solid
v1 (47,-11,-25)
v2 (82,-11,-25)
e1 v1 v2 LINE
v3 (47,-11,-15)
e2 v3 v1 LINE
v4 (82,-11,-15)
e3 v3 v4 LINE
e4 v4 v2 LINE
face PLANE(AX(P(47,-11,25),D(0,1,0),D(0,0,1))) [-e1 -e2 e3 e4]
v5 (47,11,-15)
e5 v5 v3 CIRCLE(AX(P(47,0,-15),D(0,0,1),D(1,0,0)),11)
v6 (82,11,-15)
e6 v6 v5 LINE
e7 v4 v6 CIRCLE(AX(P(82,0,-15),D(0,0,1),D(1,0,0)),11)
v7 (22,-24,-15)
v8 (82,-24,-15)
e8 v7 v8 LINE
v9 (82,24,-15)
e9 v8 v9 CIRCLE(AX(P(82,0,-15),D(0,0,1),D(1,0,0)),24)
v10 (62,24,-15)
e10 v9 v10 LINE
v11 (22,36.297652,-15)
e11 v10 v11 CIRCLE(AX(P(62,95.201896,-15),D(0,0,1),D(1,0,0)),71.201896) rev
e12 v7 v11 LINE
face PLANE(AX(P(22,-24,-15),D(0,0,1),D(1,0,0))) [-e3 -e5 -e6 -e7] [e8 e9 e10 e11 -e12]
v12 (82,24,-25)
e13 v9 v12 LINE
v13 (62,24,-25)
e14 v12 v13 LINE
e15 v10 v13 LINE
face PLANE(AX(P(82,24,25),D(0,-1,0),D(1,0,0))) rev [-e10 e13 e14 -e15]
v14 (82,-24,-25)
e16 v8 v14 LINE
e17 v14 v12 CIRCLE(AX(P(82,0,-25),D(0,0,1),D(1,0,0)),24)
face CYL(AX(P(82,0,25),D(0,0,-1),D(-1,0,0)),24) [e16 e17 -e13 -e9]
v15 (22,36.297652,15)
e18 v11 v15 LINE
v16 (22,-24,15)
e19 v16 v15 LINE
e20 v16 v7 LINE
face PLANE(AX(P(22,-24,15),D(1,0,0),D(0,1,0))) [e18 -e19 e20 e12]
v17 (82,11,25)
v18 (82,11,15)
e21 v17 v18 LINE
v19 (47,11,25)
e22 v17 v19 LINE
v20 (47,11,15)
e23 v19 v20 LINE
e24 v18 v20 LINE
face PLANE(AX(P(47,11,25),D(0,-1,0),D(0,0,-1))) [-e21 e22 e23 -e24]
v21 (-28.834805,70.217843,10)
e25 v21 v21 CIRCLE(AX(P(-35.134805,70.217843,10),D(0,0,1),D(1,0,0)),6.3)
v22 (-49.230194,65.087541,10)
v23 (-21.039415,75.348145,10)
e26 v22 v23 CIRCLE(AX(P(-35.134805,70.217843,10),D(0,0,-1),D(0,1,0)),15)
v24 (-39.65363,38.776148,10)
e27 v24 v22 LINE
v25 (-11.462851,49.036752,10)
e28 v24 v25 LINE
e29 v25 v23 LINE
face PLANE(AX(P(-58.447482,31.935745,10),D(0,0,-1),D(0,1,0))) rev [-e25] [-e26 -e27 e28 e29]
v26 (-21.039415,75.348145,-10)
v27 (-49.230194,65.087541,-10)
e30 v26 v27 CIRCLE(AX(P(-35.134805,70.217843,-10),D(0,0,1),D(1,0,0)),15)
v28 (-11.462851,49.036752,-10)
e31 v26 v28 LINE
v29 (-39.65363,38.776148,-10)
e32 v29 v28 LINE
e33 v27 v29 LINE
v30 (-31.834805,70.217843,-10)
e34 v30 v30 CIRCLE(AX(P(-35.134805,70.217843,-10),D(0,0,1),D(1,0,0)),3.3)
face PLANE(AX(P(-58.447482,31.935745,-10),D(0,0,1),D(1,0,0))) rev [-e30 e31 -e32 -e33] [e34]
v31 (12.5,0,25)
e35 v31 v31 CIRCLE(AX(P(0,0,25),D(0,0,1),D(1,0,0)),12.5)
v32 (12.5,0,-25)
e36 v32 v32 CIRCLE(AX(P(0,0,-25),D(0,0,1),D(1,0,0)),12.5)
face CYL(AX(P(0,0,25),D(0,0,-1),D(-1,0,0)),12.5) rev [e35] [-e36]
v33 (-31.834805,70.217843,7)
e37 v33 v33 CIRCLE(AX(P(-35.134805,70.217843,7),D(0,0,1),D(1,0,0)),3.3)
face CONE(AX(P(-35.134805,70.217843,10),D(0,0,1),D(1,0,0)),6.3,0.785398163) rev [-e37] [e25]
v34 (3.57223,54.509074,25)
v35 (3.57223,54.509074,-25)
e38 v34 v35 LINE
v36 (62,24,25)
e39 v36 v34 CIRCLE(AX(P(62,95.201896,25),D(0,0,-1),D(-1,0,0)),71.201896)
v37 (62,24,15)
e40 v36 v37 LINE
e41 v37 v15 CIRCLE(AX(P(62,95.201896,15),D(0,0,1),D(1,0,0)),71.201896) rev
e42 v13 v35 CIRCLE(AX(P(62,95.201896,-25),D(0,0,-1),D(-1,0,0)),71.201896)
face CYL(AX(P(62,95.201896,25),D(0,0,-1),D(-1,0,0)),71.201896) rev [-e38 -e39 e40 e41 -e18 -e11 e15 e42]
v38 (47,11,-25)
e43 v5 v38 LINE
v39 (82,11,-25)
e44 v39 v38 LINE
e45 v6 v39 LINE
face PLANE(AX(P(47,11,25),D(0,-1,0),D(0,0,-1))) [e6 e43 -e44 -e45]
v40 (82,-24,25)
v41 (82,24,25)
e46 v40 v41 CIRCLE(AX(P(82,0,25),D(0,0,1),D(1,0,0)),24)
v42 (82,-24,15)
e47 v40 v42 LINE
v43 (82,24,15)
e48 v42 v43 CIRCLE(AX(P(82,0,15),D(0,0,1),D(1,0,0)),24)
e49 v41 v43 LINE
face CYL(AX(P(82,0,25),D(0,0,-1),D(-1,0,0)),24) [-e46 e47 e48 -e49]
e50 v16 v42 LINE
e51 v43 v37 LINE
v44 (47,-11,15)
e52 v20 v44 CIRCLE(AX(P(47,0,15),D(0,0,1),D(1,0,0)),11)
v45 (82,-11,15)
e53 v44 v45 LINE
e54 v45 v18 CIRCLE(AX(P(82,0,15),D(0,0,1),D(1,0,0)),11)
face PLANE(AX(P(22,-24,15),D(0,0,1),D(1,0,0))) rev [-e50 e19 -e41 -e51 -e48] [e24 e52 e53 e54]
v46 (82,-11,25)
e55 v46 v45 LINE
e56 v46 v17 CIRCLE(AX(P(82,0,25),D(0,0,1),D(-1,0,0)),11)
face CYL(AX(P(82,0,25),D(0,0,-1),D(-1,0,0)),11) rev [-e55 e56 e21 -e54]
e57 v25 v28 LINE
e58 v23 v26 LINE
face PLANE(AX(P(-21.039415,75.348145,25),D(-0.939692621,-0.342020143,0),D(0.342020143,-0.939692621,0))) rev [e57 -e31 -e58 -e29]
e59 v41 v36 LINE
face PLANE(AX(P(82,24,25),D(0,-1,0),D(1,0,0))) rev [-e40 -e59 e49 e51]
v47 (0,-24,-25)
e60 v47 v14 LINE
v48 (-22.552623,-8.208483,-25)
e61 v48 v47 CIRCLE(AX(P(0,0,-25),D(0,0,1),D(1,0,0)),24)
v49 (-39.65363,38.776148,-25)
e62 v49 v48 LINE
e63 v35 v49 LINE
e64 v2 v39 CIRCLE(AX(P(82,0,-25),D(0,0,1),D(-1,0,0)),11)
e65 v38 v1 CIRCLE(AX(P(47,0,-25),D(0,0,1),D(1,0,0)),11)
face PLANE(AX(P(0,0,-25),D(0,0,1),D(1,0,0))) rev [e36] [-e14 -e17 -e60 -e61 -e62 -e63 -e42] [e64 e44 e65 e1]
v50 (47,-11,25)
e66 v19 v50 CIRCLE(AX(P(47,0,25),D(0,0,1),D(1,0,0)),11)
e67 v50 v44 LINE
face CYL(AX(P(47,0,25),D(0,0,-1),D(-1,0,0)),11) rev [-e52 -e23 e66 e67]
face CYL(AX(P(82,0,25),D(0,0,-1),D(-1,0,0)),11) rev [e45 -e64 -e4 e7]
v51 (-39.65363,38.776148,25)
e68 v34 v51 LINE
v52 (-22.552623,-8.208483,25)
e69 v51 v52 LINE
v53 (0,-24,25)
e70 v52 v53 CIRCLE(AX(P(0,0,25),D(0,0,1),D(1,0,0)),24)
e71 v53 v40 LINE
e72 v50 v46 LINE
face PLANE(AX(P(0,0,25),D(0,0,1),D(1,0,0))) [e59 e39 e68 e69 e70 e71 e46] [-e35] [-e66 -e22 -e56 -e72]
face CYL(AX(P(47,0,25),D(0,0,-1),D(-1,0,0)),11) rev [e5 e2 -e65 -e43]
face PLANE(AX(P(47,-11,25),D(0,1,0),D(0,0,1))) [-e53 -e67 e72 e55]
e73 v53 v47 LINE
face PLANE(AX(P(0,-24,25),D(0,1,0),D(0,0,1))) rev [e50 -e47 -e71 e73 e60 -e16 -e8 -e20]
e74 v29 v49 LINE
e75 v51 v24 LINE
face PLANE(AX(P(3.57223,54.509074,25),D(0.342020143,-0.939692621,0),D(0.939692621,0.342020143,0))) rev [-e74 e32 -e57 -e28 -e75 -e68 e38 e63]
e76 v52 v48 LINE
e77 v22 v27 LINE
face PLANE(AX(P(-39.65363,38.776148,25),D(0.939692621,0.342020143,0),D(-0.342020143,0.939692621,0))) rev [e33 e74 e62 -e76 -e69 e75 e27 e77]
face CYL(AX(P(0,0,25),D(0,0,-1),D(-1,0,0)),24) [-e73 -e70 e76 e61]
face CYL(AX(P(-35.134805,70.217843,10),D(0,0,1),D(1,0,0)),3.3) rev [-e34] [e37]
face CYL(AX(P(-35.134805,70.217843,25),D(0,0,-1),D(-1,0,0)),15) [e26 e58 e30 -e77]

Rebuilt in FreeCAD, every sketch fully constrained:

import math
import FreeCAD as App
import Part
import Sketcher
Q = App.Units.Quantity


def add_polygon(sketch, points):
    """Adds a closed chain of lines whose ends are joined by coincident constraints."""
    first, n = sketch.GeometryCount, len(points)
    for a, b in zip(points, points[1:] + points[:1]):
        sketch.addGeometry(Part.LineSegment(App.Vector(*a, 0), App.Vector(*b, 0)), False)
    for i in range(n):
        sketch.addConstraint(Sketcher.Constraint("Coincident", first + i, 2, first + (i + 1) % n, 1))

doc = App.newDocument("Part")
params = doc.addObject("Spreadsheet::Sheet", "Params")
for row, (alias, value) in enumerate([
    ("sketch1_diameter", "25 mm"),
    ("sketch1_diameter2", "6 mm"),
    ("sketch1_radius", "24 mm"),
    ("sketch1_radius2", "15 mm"),
    ("sketch1_radius3", "11 mm"),
    ("pad1_length", "50 mm"),
    ("sketch2_width", "15 mm"),
    ("sketch2_height", "43 mm"),
    ("pocket1_length", "50 mm"),
    ("sketch3_width", "100 mm"),
    ("sketch3_height", "30 mm"),
    ("sketch4_diameter", "6.6 mm"),
    ("hole_diameter", "6.6 mm"),
    ("hole_csink_diameter", "12.6 mm"),
], start=1):
    params.set(f"A{row}", alias)
    params.set(f"B{row}", "=" + value)
    params.setAlias(f"B{row}", alias)

body = doc.addObject("PartDesign::Body", "Body")

sketch1 = body.newObject("Sketcher::SketchObject", "Sketch")
sketch1.AttachmentSupport = (doc.getObject("XY_Plane"), [""])
sketch1.MapMode = "FlatFace"
sketch1.addGeometry([
    Part.LineSegment(App.Vector(0, -24, 0), App.Vector(82, -24, 0)),
    Part.ArcOfCircle(Part.Circle(App.Vector(82, 0, 0), App.Vector(0, 0, 1), 24), math.radians(-90), math.radians(90)),
    Part.LineSegment(App.Vector(82, 24, 0), App.Vector(62, 24, 0)),
    Part.ArcOfCircle(Part.Circle(App.Vector(62, 95.2, 0), App.Vector(0, 0, 1), 71.2), math.radians(-145), math.radians(-90)),
    Part.LineSegment(App.Vector(3.6, 54.5, 0), App.Vector(-11.5, 49, 0)),
    Part.LineSegment(App.Vector(-11.5, 49, 0), App.Vector(-21, 75.3, 0)),
    Part.ArcOfCircle(Part.Circle(App.Vector(-35.1, 70.2, 0), App.Vector(0, 0, 1), 15), math.radians(20), math.radians(200)),
    Part.LineSegment(App.Vector(-49.2, 65.1, 0), App.Vector(-22.6, -8.2, 0)),
    Part.ArcOfCircle(Part.Circle(App.Vector(0, 0, 0), App.Vector(0, 0, 1), 24), math.radians(-160), math.radians(-90)),
    Part.Circle(App.Vector(0, 0, 0), App.Vector(0, 0, 1), 12.5),
    Part.ArcOfCircle(Part.Circle(App.Vector(47, 0, 0), App.Vector(0, 0, 1), 11), math.radians(90), math.radians(270)),
    Part.LineSegment(App.Vector(47, 11, 0), App.Vector(82, 11, 0)),
    Part.ArcOfCircle(Part.Circle(App.Vector(82, 0, 0), App.Vector(0, 0, 1), 11), math.radians(-90), math.radians(90)),
    Part.LineSegment(App.Vector(82, -11, 0), App.Vector(47, -11, 0)),
    Part.Circle(App.Vector(-35.1, 70.2, 0), App.Vector(0, 0, 1), 3),
], False)
sketch1.addConstraint([
    Sketcher.Constraint("Tangent", 0, 2, 1, 1),
    Sketcher.Constraint("Tangent", 1, 2, 2, 1),
    Sketcher.Constraint("Tangent", 2, 2, 3, 2),
    Sketcher.Constraint("Coincident", 3, 1, 4, 1),
    Sketcher.Constraint("Coincident", 4, 2, 5, 1),
    Sketcher.Constraint("Tangent", 5, 2, 6, 1),
    Sketcher.Constraint("Tangent", 6, 2, 7, 1),
    Sketcher.Constraint("Tangent", 7, 2, 8, 1),
    Sketcher.Constraint("Tangent", 8, 2, 0, 1),
    Sketcher.Constraint("Tangent", 10, 1, 11, 1),
    Sketcher.Constraint("Tangent", 11, 2, 12, 2),
    Sketcher.Constraint("Tangent", 12, 1, 13, 1),
    Sketcher.Constraint("Tangent", 13, 2, 10, 2),
    Sketcher.Constraint("Horizontal", 0),
    Sketcher.Constraint("Horizontal", 2),
    Sketcher.Constraint("Horizontal", 11),
    Sketcher.Constraint("Horizontal", 13),
    Sketcher.Constraint("Coincident", 8, 3, -1, 1),
    Sketcher.Constraint("Coincident", 9, 3, -1, 1),
    Sketcher.Constraint("Coincident", 12, 3, 1, 3),
    Sketcher.Constraint("Coincident", 14, 3, 6, 3),
    Sketcher.Constraint("Equal", 1, 8),
    Sketcher.Constraint("Perpendicular", 4, 5),
    Sketcher.Constraint("Parallel", 5, 7),
    Sketcher.Constraint("Diameter", 9, Q("25 mm")),
    Sketcher.Constraint("Diameter", 14, Q("6 mm")),
    Sketcher.Constraint("Radius", 1, Q("24 mm")),
    Sketcher.Constraint("Radius", 6, Q("15 mm")),
    Sketcher.Constraint("Radius", 10, Q("11 mm")),
    Sketcher.Constraint("DistanceX", 0, 1, 0, 2, Q("82 mm")),
    Sketcher.Constraint("DistanceX", 2, 2, 2, 1, Q("20 mm")),
    Sketcher.Constraint("DistanceX", 11, 1, 11, 2, Q("35 mm")),
    Sketcher.Constraint("Angle", 4, Q("-160 deg")),
    Sketcher.Constraint("Distance", 4, Q("16 mm")),
    Sketcher.Constraint("Distance", 5, Q("28 mm")),
    Sketcher.Constraint("Distance", 7, Q("78 mm")),
])
sketch1.setExpression("Constraints[24]", "Params.sketch1_diameter")
sketch1.setExpression("Constraints[25]", "Params.sketch1_diameter2")
sketch1.setExpression("Constraints[26]", "Params.sketch1_radius")
sketch1.setExpression("Constraints[27]", "Params.sketch1_radius2")
sketch1.setExpression("Constraints[28]", "Params.sketch1_radius3")
pad1 = body.newObject("PartDesign::Pad", "Pad")
pad1.Profile = sketch1
pad1.setExpression("Length", "Params.pad1_length")
pad1.Midplane = True

sketch2 = body.newObject("Sketcher::SketchObject", "Sketch001")
sketch2.Placement = App.Placement(App.Vector(5.638156, 2.052121, 0), App.Rotation(App.Vector(0, 0, -1), App.Vector(-0.342020143, 0.939692621, 0), App.Vector(0.939692621, 0.342020143, 0), "ZXY"))
add_polygon(sketch2, [(-25, 93), (-25, 50), (-10, 50), (-10, 93)])
add_polygon(sketch2, [(10, 93), (10, 50), (25, 50), (25, 93)])
sketch2.addConstraint([
    Sketcher.Constraint("Vertical", 0),
    Sketcher.Constraint("Horizontal", 1),
    Sketcher.Constraint("Vertical", 2),
    Sketcher.Constraint("Horizontal", 3),
    Sketcher.Constraint("Vertical", 4),
    Sketcher.Constraint("Horizontal", 5),
    Sketcher.Constraint("Vertical", 6),
    Sketcher.Constraint("Horizontal", 7),
    Sketcher.Constraint("Symmetric", 1, 2, 4, 2, -2),
    Sketcher.Constraint("Symmetric", 3, 2, 6, 2, -2),
    Sketcher.Constraint("DistanceX", 1, 1, 1, 2, Q("15 mm")),
    Sketcher.Constraint("DistanceY", 0, 2, 0, 1, Q("43 mm")),
    Sketcher.Constraint("DistanceX", 0, 2, -1, 1, Q("25 mm")),
    Sketcher.Constraint("DistanceY", -1, 1, 0, 2, Q("50 mm")),
])
sketch2.setExpression("Constraints[18]", "Params.sketch2_width")
sketch2.setExpression("Constraints[19]", "Params.sketch2_height")
pocket1 = body.newObject("PartDesign::Pocket", "Pocket")
pocket1.Profile = sketch2
pocket1.setExpression("Length", "Params.pocket1_length")

sketch3 = body.newObject("Sketcher::SketchObject", "Sketch002")
sketch3.AttachmentSupport = (doc.getObject("XZ_Plane"), [""])
sketch3.MapMode = "FlatFace"
sketch3.AttachmentOffset = App.Placement(App.Vector(0, 0, -24), App.Rotation())
add_polygon(sketch3, [(22, -15), (22, 15), (122, 15), (122, -15)])
sketch3.addConstraint([
    Sketcher.Constraint("Vertical", 0),
    Sketcher.Constraint("Horizontal", 1),
    Sketcher.Constraint("Vertical", 2),
    Sketcher.Constraint("Horizontal", 3),
    Sketcher.Constraint("DistanceX", 1, 1, 1, 2, Q("100 mm")),
    Sketcher.Constraint("DistanceY", 0, 1, 0, 2, Q("30 mm")),
    Sketcher.Constraint("DistanceX", -1, 1, 0, 2, Q("22 mm")),
    Sketcher.Constraint("DistanceY", -1, 1, 0, 2, Q("15 mm")),
])
sketch3.setExpression("Constraints[8]", "Params.sketch3_width")
sketch3.setExpression("Constraints[9]", "Params.sketch3_height")
pocket2 = body.newObject("PartDesign::Pocket", "Pocket001")
pocket2.Profile = sketch3
pocket2.Type = "ThroughAll"
pocket2.Midplane = True

sketch4 = body.newObject("Sketcher::SketchObject", "Sketch003")
sketch4.AttachmentSupport = (doc.getObject("XY_Plane"), [""])
sketch4.MapMode = "FlatFace"
sketch4.AttachmentOffset = App.Placement(App.Vector(0, 0, 10), App.Rotation())
sketch4.addGeometry(Part.Circle(App.Vector(-35.1, 70.2, 0), App.Vector(0, 0, 1), 3.3), False)
sketch4.addConstraint([
    Sketcher.Constraint("Diameter", 0, Q("6.6 mm")),
    Sketcher.Constraint("DistanceX", 0, 3, -1, 1, Q("35.134805 mm")),
    Sketcher.Constraint("DistanceY", -1, 1, 0, 3, Q("70.217843 mm")),
])
sketch4.setExpression("Constraints[0]", "Params.sketch4_diameter")
doc.recompute()
hole = body.newObject("PartDesign::Hole", "Hole")
hole.Profile = sketch4
hole.ThreadType = "None"
hole.setExpression("Diameter", "Params.hole_diameter")
hole.DepthType = "ThroughAll"
hole.HoleCutType = "Countersink"
hole.setExpression("HoleCutDiameter", "Params.hole_csink_diameter")
hole.HoleCutCountersinkAngle = 90

doc.recompute()
